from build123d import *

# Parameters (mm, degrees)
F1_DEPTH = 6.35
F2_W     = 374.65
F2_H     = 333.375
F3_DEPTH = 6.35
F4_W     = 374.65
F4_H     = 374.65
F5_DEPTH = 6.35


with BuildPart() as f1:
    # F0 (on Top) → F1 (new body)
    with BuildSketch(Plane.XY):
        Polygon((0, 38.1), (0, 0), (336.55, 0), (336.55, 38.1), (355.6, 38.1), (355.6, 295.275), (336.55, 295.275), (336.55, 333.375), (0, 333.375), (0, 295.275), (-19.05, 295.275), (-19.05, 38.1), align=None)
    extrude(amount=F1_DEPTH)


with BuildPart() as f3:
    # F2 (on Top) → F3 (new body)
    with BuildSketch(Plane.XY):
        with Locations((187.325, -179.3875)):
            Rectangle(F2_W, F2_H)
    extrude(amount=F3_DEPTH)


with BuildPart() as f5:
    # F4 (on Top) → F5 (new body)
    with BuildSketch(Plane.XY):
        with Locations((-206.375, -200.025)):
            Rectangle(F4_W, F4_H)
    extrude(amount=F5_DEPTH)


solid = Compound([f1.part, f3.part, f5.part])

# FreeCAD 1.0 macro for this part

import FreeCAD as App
import Part
import Sketcher

V = App.Vector
Q = App.Units.Quantity

doc = App.newDocument("Part")
body = doc.addObject("PartDesign::Body", "Body")

# Sketch on XY plane
sketch1 = body.newObject("Sketcher::SketchObject", "Sketch")
sketch1.AttachmentSupport = (doc.getObject("XY_Plane"), [""])
sketch1.MapMode = "FlatFace"
sketch1.addGeometry(Part.LineSegment(V(0, 38.1, 0), V(0, 0, 0)), False)
sketch1.addGeometry(Part.LineSegment(V(0, 0, 0), V(336.55, 0, 0)), False)
sketch1.addGeometry(Part.LineSegment(V(336.55, 0, 0), V(336.55, 38.1, 0)), False)
sketch1.addGeometry(Part.LineSegment(V(336.55, 38.1, 0), V(355.6, 38.1, 0)), False)
sketch1.addGeometry(Part.LineSegment(V(355.6, 38.1, 0), V(355.6, 295.275, 0)), False)
sketch1.addGeometry(Part.LineSegment(V(355.6, 295.275, 0), V(336.55, 295.275, 0)), False)
sketch1.addGeometry(Part.LineSegment(V(336.55, 295.275, 0), V(336.55, 333.375, 0)), False)
sketch1.addGeometry(Part.LineSegment(V(336.55, 333.375, 0), V(0, 333.375, 0)), False)
sketch1.addGeometry(Part.LineSegment(V(0, 333.375, 0), V(0, 295.275, 0)), False)
sketch1.addGeometry(Part.LineSegment(V(0, 295.275, 0), V(-19.05, 295.275, 0)), False)
sketch1.addGeometry(Part.LineSegment(V(-19.05, 295.275, 0), V(-19.05, 38.1, 0)), False)
sketch1.addGeometry(Part.LineSegment(V(-19.05, 38.1, 0), V(0, 38.1, 0)), False)
sketch1.addConstraint(Sketcher.Constraint("Coincident", 0, 2, 1, 1))
sketch1.addConstraint(Sketcher.Constraint("Coincident", 1, 2, 2, 1))
sketch1.addConstraint(Sketcher.Constraint("Coincident", 2, 2, 3, 1))
sketch1.addConstraint(Sketcher.Constraint("Coincident", 3, 2, 4, 1))
sketch1.addConstraint(Sketcher.Constraint("Coincident", 4, 2, 5, 1))
sketch1.addConstraint(Sketcher.Constraint("Coincident", 5, 2, 6, 1))
sketch1.addConstraint(Sketcher.Constraint("Coincident", 6, 2, 7, 1))
sketch1.addConstraint(Sketcher.Constraint("Coincident", 7, 2, 8, 1))
sketch1.addConstraint(Sketcher.Constraint("Coincident", 8, 2, 9, 1))
sketch1.addConstraint(Sketcher.Constraint("Coincident", 9, 2, 10, 1))
sketch1.addConstraint(Sketcher.Constraint("Coincident", 10, 2, 11, 1))
sketch1.addConstraint(Sketcher.Constraint("Coincident", 11, 2, 0, 1))
sketch1.addConstraint(Sketcher.Constraint("Vertical", 0))
sketch1.addConstraint(Sketcher.Constraint("Horizontal", 1))
sketch1.addConstraint(Sketcher.Constraint("Vertical", 2))
sketch1.addConstraint(Sketcher.Constraint("Horizontal", 3))
sketch1.addConstraint(Sketcher.Constraint("Vertical", 4))
sketch1.addConstraint(Sketcher.Constraint("Horizontal", 5))
sketch1.addConstraint(Sketcher.Constraint("Vertical", 6))
sketch1.addConstraint(Sketcher.Constraint("Horizontal", 7))
sketch1.addConstraint(Sketcher.Constraint("Vertical", 8))
sketch1.addConstraint(Sketcher.Constraint("Horizontal", 9))
sketch1.addConstraint(Sketcher.Constraint("Vertical", 10))
sketch1.addConstraint(Sketcher.Constraint("Horizontal", 11))
sketch1.addConstraint(Sketcher.Constraint("Coincident", 0, 2, -1, 1))
sketch1.addConstraint(Sketcher.Constraint("PointOnObject", 7, 2, -2))
sketch1.addConstraint(Sketcher.Constraint("Horizontal", 5, 2, 8, 2))
sketch1.addConstraint(Sketcher.Constraint("Horizontal", 3, 2, 10, 2))
sketch1.addConstraint(Sketcher.Constraint("Vertical", 2, 2, 5, 2))
sketch1.addConstraint(Sketcher.Constraint("Equal", 5, 9))
sketch1.addConstraint(Sketcher.Constraint("Equal", 2, 6))
sketch1.addConstraint(Sketcher.Constraint("DistanceY", 0, 2, 0, 1, Q("1.5 in")))
sketch1.addConstraint(Sketcher.Constraint("DistanceX", -1, 1, 3, 2, Q("14 in")))
sketch1.addConstraint(Sketcher.Constraint("DistanceX", 1, 1, 1, 2, Q("13.25 in")))
sketch1.addConstraint(Sketcher.Constraint("DistanceY", 4, 1, 4, 2, Q("10.125 in")))
pad1 = body.newObject("PartDesign::Pad", "Pad")
pad1.Profile = sketch1
pad1.Length = Q("0.25 in")
body2 = doc.addObject("PartDesign::Body", "Body001")

# Sketch on XY plane
sketch2 = body2.newObject("Sketcher::SketchObject", "Sketch001")
sketch2.AttachmentSupport = (doc.getObject("XY_Plane001"), [""])
sketch2.MapMode = "FlatFace"
sketch2.addGeometry(Part.LineSegment(V(0, -12.7, 0), V(0, -346.075, 0)), False)
sketch2.addGeometry(Part.LineSegment(V(0, -346.075, 0), V(374.65, -346.075, 0)), False)
sketch2.addGeometry(Part.LineSegment(V(374.65, -346.075, 0), V(374.65, -12.7, 0)), False)
sketch2.addGeometry(Part.LineSegment(V(374.65, -12.7, 0), V(0, -12.7, 0)), False)
sketch2.addConstraint(Sketcher.Constraint("Coincident", 0, 2, 1, 1))
sketch2.addConstraint(Sketcher.Constraint("Coincident", 1, 2, 2, 1))
sketch2.addConstraint(Sketcher.Constraint("Coincident", 2, 2, 3, 1))
sketch2.addConstraint(Sketcher.Constraint("Coincident", 3, 2, 0, 1))
sketch2.addConstraint(Sketcher.Constraint("Vertical", 0))
sketch2.addConstraint(Sketcher.Constraint("Horizontal", 1))
sketch2.addConstraint(Sketcher.Constraint("Vertical", 2))
sketch2.addConstraint(Sketcher.Constraint("Horizontal", 3))
sketch2.addConstraint(Sketcher.Constraint("PointOnObject", 0, 2, -2))
sketch2.addConstraint(Sketcher.Constraint("DistanceX", 1, 1, 1, 2, Q("14.75 in")))
sketch2.addConstraint(Sketcher.Constraint("DistanceY", 2, 2, -1, 1, Q("0.5 in")))
sketch2.addConstraint(Sketcher.Constraint("DistanceY", 0, 2, 0, 1, Q("13.125 in")))
pad2 = body2.newObject("PartDesign::Pad", "Pad001")
pad2.Profile = sketch2
pad2.Length = Q("0.25 in")
body3 = doc.addObject("PartDesign::Body", "Body002")

# Sketch on XY plane
sketch3 = body3.newObject("Sketcher::SketchObject", "Sketch002")
sketch3.AttachmentSupport = (doc.getObject("XY_Plane002"), [""])
sketch3.MapMode = "FlatFace"
sketch3.addGeometry(Part.LineSegment(V(-393.7, -12.7, 0), V(-393.7, -387.35, 0)), False)
sketch3.addGeometry(Part.LineSegment(V(-393.7, -387.35, 0), V(-19.05, -387.35, 0)), False)
sketch3.addGeometry(Part.LineSegment(V(-19.05, -387.35, 0), V(-19.05, -12.7, 0)), False)
sketch3.addGeometry(Part.LineSegment(V(-19.05, -12.7, 0), V(-393.7, -12.7, 0)), False)
sketch3.addConstraint(Sketcher.Constraint("Coincident", 0, 2, 1, 1))
sketch3.addConstraint(Sketcher.Constraint("Coincident", 1, 2, 2, 1))
sketch3.addConstraint(Sketcher.Constraint("Coincident", 2, 2, 3, 1))
sketch3.addConstraint(Sketcher.Constraint("Coincident", 3, 2, 0, 1))
sketch3.addConstraint(Sketcher.Constraint("Vertical", 0))
sketch3.addConstraint(Sketcher.Constraint("Horizontal", 1))
sketch3.addConstraint(Sketcher.Constraint("Vertical", 2))
sketch3.addConstraint(Sketcher.Constraint("Horizontal", 3))
sketch3.addConstraint(Sketcher.Constraint("Equal", 3, 0))
sketch3.addConstraint(Sketcher.Constraint("DistanceX", 1, 1, 1, 2, Q("14.75 in")))
sketch3.addConstraint(Sketcher.Constraint("DistanceX", 0, 2, -1, 1, Q("15.5 in")))
sketch3.addConstraint(Sketcher.Constraint("DistanceY", 2, 2, -1, 1, Q("0.5 in")))
pad3 = body3.newObject("PartDesign::Pad", "Pad002")
pad3.Profile = sketch3
pad3.Length = Q("0.25 in")

doc.recompute()
